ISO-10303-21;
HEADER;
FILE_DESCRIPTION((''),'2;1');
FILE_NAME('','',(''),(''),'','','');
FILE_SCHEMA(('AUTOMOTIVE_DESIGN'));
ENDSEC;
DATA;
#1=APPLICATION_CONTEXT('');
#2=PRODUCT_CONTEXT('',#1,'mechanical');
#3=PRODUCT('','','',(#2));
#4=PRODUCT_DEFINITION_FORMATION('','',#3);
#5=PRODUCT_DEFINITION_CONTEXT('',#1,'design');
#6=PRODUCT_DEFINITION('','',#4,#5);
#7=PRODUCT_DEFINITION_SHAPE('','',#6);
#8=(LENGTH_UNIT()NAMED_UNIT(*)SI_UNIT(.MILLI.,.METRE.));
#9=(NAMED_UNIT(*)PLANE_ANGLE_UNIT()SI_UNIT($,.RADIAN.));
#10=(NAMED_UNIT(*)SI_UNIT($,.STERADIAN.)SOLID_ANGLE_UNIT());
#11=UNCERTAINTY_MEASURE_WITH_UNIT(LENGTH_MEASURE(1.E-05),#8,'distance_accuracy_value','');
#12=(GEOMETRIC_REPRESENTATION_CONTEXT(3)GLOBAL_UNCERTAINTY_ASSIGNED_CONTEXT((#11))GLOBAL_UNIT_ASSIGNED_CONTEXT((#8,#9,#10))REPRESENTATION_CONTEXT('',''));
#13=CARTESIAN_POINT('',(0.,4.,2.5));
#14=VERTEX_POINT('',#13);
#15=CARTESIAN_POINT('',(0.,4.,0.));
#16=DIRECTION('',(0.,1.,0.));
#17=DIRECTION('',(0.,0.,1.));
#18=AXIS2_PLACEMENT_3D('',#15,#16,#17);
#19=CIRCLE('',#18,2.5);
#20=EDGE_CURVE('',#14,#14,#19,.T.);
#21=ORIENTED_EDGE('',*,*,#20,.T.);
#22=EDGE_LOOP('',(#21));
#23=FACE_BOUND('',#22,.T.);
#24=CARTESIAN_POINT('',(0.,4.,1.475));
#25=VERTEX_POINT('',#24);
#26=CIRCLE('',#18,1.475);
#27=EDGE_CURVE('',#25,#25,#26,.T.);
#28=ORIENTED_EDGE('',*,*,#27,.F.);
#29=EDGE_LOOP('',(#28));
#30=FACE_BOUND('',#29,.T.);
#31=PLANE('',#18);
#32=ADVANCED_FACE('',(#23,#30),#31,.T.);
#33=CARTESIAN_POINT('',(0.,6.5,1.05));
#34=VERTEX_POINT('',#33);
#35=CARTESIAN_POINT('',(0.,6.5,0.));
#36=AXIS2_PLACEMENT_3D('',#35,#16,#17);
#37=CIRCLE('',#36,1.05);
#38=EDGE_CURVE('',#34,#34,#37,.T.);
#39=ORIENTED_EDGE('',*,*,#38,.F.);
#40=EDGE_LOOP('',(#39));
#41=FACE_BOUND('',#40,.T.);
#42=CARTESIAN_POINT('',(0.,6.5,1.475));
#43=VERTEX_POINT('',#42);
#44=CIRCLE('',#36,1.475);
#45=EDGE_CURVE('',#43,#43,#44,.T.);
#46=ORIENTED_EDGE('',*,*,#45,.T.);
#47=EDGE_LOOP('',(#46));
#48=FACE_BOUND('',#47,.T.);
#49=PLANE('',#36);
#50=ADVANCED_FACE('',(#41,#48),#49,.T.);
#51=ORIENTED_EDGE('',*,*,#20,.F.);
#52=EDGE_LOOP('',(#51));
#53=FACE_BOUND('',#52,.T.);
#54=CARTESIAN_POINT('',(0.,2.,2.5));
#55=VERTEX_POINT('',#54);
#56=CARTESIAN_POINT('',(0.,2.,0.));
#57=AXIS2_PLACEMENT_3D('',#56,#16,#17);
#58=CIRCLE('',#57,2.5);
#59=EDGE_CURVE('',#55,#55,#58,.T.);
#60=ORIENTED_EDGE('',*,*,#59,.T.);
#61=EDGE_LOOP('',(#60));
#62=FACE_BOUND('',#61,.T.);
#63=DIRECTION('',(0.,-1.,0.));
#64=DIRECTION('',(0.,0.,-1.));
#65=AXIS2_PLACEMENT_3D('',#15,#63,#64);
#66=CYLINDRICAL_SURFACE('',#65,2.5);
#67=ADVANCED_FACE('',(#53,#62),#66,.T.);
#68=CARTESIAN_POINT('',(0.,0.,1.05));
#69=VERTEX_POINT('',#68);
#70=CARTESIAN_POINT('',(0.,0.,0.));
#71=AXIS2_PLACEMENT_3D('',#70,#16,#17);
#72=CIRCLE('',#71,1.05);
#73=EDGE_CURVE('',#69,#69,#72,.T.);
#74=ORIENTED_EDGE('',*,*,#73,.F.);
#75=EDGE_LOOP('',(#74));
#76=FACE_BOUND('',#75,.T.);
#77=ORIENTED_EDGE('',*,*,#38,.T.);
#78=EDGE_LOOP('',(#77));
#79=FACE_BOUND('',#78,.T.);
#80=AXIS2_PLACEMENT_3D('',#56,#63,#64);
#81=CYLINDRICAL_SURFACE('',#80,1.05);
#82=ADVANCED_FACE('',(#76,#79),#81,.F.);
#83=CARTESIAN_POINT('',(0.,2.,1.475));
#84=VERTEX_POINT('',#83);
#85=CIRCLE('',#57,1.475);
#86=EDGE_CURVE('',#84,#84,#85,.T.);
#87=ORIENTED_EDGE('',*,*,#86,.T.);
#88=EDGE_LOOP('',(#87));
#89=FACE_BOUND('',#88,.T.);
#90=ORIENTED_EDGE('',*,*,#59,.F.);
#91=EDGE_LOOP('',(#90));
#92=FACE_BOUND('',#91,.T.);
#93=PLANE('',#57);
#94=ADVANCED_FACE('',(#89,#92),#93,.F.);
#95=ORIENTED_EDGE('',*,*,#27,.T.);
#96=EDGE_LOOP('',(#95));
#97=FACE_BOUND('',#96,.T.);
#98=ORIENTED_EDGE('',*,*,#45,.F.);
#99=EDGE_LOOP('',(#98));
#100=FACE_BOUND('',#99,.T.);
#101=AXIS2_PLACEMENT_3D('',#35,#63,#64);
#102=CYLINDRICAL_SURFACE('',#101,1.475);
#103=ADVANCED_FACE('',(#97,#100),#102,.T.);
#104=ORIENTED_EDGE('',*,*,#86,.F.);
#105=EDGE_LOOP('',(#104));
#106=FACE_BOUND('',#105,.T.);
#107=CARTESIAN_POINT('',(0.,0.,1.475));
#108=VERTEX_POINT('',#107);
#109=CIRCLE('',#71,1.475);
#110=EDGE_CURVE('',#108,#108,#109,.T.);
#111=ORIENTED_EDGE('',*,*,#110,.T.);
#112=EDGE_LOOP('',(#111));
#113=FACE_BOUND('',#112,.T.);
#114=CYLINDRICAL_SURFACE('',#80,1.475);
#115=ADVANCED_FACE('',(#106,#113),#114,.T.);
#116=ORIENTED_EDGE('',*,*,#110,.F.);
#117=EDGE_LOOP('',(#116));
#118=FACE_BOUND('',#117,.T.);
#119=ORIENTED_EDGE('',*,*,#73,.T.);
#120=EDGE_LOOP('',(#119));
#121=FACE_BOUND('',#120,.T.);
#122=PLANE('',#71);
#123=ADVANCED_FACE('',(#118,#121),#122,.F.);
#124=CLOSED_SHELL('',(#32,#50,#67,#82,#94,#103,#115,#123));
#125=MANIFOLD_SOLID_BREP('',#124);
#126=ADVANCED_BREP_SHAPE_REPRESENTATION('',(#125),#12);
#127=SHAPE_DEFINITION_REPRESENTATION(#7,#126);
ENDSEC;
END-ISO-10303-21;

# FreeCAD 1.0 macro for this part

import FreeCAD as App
import Part
import Sketcher

V = App.Vector
Q = App.Units.Quantity

doc = App.newDocument("Part")
body = doc.addObject("PartDesign::Body", "Body")

sketch1 = body.newObject("Sketcher::SketchObject", "Sketch")
sketch1.AttachmentSupport = (doc.getObject("XZ_Plane"), [""])
sketch1.MapMode = "FlatFace"
sketch1.addGeometry(Part.Circle(V(0, 0, 0), V(0, 0, 1), 1.5), False)
sketch1.addGeometry(Part.Circle(V(0, 0, 0), V(0, 0, 1), 1.1), False)
sketch1.addConstraint(Sketcher.Constraint("Coincident", 0, 3, -1, 1))
sketch1.addConstraint(Sketcher.Constraint("Coincident", 1, 3, -1, 1))
sketch1.addConstraint(Sketcher.Constraint("Diameter", 1, Q("2.1 mm")))
sketch1.addConstraint(Sketcher.Constraint("Diameter", 0, Q("2.95 mm")))
pad1 = body.newObject("PartDesign::Pad", "Pad")
pad1.Profile = sketch1
pad1.Length = 2
pad1.Reversed = True

sketch2 = body.newObject("Sketcher::SketchObject", "Sketch001")
sketch2.AttachmentSupport = (doc.getObject("XZ_Plane"), [""])
sketch2.MapMode = "FlatFace"
sketch2.AttachmentOffset = App.Placement(V(0, 0, -2), App.Rotation())
sketch2.addGeometry(Part.Circle(V(0, 0, 0), V(0, 0, 1), 2.5), False)
sketch2.addGeometry(Part.Circle(V(0, 0, 0), V(0, 0, 1), 1.1), False)
sketch2.addConstraint(Sketcher.Constraint("Coincident", 0, 3, -1, 1))
sketch2.addConstraint(Sketcher.Constraint("Coincident", 1, 3, -1, 1))
sketch2.addConstraint(Sketcher.Constraint("Diameter", 0, Q("5 mm")))
sketch2.addConstraint(Sketcher.Constraint("Diameter", 1, Q("2.1 mm")))
pad2 = body.newObject("PartDesign::Pad", "Pad001")
pad2.Profile = sketch2
pad2.Length = 2
pad2.Reversed = True

sketch3 = body.newObject("Sketcher::SketchObject", "Sketch002")
sketch3.AttachmentSupport = (doc.getObject("XZ_Plane"), [""])
sketch3.MapMode = "FlatFace"
sketch3.AttachmentOffset = App.Placement(V(0, 0, -4), App.Rotation())
sketch3.addGeometry(Part.Circle(V(0, 0, 0), V(0, 0, 1), 1.5), False)
sketch3.addGeometry(Part.Circle(V(0, 0, 0), V(0, 0, 1), 1.1), False)
sketch3.addConstraint(Sketcher.Constraint("Coincident", 0, 3, -1, 1))
sketch3.addConstraint(Sketcher.Constraint("Coincident", 1, 3, -1, 1))
sketch3.addConstraint(Sketcher.Constraint("Diameter", 1, Q("2.1 mm")))
sketch3.addConstraint(Sketcher.Constraint("Diameter", 0, Q("2.95 mm")))
pad3 = body.newObject("PartDesign::Pad", "Pad002")
pad3.Profile = sketch3
pad3.Length = 2.5
pad3.Reversed = True

doc.recompute()
